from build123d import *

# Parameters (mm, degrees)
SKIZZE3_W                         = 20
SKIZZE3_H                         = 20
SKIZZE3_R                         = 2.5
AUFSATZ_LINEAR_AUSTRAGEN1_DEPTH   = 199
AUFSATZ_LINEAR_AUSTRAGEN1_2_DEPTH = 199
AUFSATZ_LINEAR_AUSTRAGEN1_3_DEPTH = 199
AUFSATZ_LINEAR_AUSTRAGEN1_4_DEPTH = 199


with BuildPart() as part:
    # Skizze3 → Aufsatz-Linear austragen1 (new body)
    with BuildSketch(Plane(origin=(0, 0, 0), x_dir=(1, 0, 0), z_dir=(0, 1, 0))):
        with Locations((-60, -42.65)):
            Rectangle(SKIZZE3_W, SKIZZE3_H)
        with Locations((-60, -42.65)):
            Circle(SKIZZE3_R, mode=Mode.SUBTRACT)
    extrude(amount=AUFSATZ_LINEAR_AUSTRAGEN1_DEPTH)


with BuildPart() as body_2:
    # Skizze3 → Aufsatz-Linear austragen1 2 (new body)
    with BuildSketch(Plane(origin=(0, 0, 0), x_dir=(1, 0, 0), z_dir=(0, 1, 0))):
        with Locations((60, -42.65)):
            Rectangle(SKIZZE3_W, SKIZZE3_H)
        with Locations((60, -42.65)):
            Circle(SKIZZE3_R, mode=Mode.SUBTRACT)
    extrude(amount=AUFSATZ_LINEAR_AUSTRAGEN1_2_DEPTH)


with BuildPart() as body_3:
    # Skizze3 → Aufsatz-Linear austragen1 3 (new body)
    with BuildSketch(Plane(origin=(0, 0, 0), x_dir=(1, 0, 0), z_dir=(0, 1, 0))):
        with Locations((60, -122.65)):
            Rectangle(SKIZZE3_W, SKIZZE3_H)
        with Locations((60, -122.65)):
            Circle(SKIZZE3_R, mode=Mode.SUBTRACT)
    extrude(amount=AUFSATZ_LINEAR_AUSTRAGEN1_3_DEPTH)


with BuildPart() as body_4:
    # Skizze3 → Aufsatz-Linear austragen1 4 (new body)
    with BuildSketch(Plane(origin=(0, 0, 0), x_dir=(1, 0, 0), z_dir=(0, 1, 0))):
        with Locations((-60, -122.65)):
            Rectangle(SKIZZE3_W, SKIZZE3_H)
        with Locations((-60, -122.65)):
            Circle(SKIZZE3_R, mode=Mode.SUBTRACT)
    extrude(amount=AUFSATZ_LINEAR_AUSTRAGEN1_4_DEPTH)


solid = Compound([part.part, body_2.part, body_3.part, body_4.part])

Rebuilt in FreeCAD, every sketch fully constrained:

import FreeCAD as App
import Part
import Sketcher
from FreeCAD import Vector
Q = App.Units.Quantity

doc = App.newDocument("Part")
body = doc.addObject("PartDesign::Body", "Body")

# Sketch on XZ plane
sketch1 = doc.addObject("Sketcher::SketchObject", "Sketch")
body.addObject(sketch1)
sketch1.AttachmentSupport = (doc.XZ_Plane, [""])
sketch1.MapMode = "FlatFace"
sketch1.addGeometry([
    Part.LineSegment(Vector(-70, 32.65, 0), Vector(-70, 52.65, 0)),  # 0
    Part.LineSegment(Vector(-70, 52.65, 0), Vector(-50, 52.65, 0)),  # 1
    Part.LineSegment(Vector(-50, 52.65, 0), Vector(-50, 32.65, 0)),  # 2
    Part.LineSegment(Vector(-50, 32.65, 0), Vector(-70, 32.65, 0)),  # 3
    Part.Circle(Vector(-60, 42.65, 0), Vector(0, 0, 1), 2.5),  # 4
], False)
sketch1.addConstraint([
    Sketcher.Constraint("Coincident", 0, 2, 1, 1),
    Sketcher.Constraint("Coincident", 1, 2, 2, 1),
    Sketcher.Constraint("Coincident", 2, 2, 3, 1),
    Sketcher.Constraint("Coincident", 3, 2, 0, 1),
    Sketcher.Constraint("Vertical", 0),
    Sketcher.Constraint("Horizontal", 1),
    Sketcher.Constraint("Vertical", 2),
    Sketcher.Constraint("Horizontal", 3),
    Sketcher.Constraint("Equal", 3, 0),
    Sketcher.Constraint("Diameter", 4, Q("5 mm")),
    Sketcher.Constraint("DistanceX", 1, 1, 1, 2, Q("20 mm")),
    Sketcher.Constraint("DistanceX", 4, 3, -1, 1, Q("60 mm")),
    Sketcher.Constraint("DistanceX", 0, 2, -1, 1, Q("70 mm")),
    Sketcher.Constraint("DistanceY", 4, 3, 0, 2, Q("10 mm")),
    Sketcher.Constraint("DistanceY", -1, 1, 4, 3, Q("42.65 mm")),
])
pad1 = doc.addObject("PartDesign::Pad", "Pad")
body.addObject(pad1)
pad1.Profile = sketch1
pad1.Length = 199
pad1.Reversed = True
body2 = doc.addObject("PartDesign::Body", "Body001")

# Sketch on XZ plane
sketch2 = doc.addObject("Sketcher::SketchObject", "Sketch001")
body2.addObject(sketch2)
sketch2.AttachmentSupport = (doc.getObject("XZ_Plane001"), [""])
sketch2.MapMode = "FlatFace"
sketch2.addGeometry([
    Part.LineSegment(Vector(50, 32.65, 0), Vector(50, 52.65, 0)),  # 0
    Part.LineSegment(Vector(50, 52.65, 0), Vector(70, 52.65, 0)),  # 1
    Part.LineSegment(Vector(70, 52.65, 0), Vector(70, 32.65, 0)),  # 2
    Part.LineSegment(Vector(70, 32.65, 0), Vector(50, 32.65, 0)),  # 3
    Part.Circle(Vector(60, 42.65, 0), Vector(0, 0, 1), 2.5),  # 4
], False)
sketch2.addConstraint([
    Sketcher.Constraint("Coincident", 0, 2, 1, 1),
    Sketcher.Constraint("Coincident", 1, 2, 2, 1),
    Sketcher.Constraint("Coincident", 2, 2, 3, 1),
    Sketcher.Constraint("Coincident", 3, 2, 0, 1),
    Sketcher.Constraint("Vertical", 0),
    Sketcher.Constraint("Horizontal", 1),
    Sketcher.Constraint("Vertical", 2),
    Sketcher.Constraint("Horizontal", 3),
    Sketcher.Constraint("Equal", 3, 0),
    Sketcher.Constraint("Diameter", 4, Q("5 mm")),
    Sketcher.Constraint("DistanceX", 1, 1, 1, 2, Q("20 mm")),
    Sketcher.Constraint("DistanceX", -1, 1, 4, 3, Q("60 mm")),
    Sketcher.Constraint("DistanceX", -1, 1, 0, 2, Q("50 mm")),
    Sketcher.Constraint("DistanceY", 4, 3, 0, 2, Q("10 mm")),
    Sketcher.Constraint("DistanceY", -1, 1, 4, 3, Q("42.65 mm")),
])
pad2 = doc.addObject("PartDesign::Pad", "Pad001")
body2.addObject(pad2)
pad2.Profile = sketch2
pad2.Length = 199
pad2.Reversed = True
body3 = doc.addObject("PartDesign::Body", "Body002")

# Sketch on XZ plane
sketch3 = doc.addObject("Sketcher::SketchObject", "Sketch002")
body3.addObject(sketch3)
sketch3.AttachmentSupport = (doc.getObject("XZ_Plane002"), [""])
sketch3.MapMode = "FlatFace"
sketch3.addGeometry([
    Part.LineSegment(Vector(50, 112.65, 0), Vector(50, 132.65, 0)),  # 0
    Part.LineSegment(Vector(50, 132.65, 0), Vector(70, 132.65, 0)),  # 1
    Part.LineSegment(Vector(70, 132.65, 0), Vector(70, 112.65, 0)),  # 2
    Part.LineSegment(Vector(70, 112.65, 0), Vector(50, 112.65, 0)),  # 3
    Part.Circle(Vector(60, 122.65, 0), Vector(0, 0, 1), 2.5),  # 4
], False)
sketch3.addConstraint([
    Sketcher.Constraint("Coincident", 0, 2, 1, 1),
    Sketcher.Constraint("Coincident", 1, 2, 2, 1),
    Sketcher.Constraint("Coincident", 2, 2, 3, 1),
    Sketcher.Constraint("Coincident", 3, 2, 0, 1),
    Sketcher.Constraint("Vertical", 0),
    Sketcher.Constraint("Horizontal", 1),
    Sketcher.Constraint("Vertical", 2),
    Sketcher.Constraint("Horizontal", 3),
    Sketcher.Constraint("Equal", 3, 0),
    Sketcher.Constraint("Diameter", 4, Q("5 mm")),
    Sketcher.Constraint("DistanceX", 1, 1, 1, 2, Q("20 mm")),
    Sketcher.Constraint("DistanceX", -1, 1, 4, 3, Q("60 mm")),
    Sketcher.Constraint("DistanceX", -1, 1, 0, 2, Q("50 mm")),
    Sketcher.Constraint("DistanceY", 4, 3, 0, 2, Q("10 mm")),
    Sketcher.Constraint("DistanceY", -1, 1, 4, 3, Q("122.65 mm")),
])
pad3 = doc.addObject("PartDesign::Pad", "Pad002")
body3.addObject(pad3)
pad3.Profile = sketch3
pad3.Length = 199
pad3.Reversed = True
body4 = doc.addObject("PartDesign::Body", "Body003")

# Sketch on XZ plane
sketch4 = doc.addObject("Sketcher::SketchObject", "Sketch003")
body4.addObject(sketch4)
sketch4.AttachmentSupport = (doc.getObject("XZ_Plane003"), [""])
sketch4.MapMode = "FlatFace"
sketch4.addGeometry([
    Part.LineSegment(Vector(-70, 112.65, 0), Vector(-70, 132.65, 0)),  # 0
    Part.LineSegment(Vector(-70, 132.65, 0), Vector(-50, 132.65, 0)),  # 1
    Part.LineSegment(Vector(-50, 132.65, 0), Vector(-50, 112.65, 0)),  # 2
    Part.LineSegment(Vector(-50, 112.65, 0), Vector(-70, 112.65, 0)),  # 3
    Part.Circle(Vector(-60, 122.65, 0), Vector(0, 0, 1), 2.5),  # 4
], False)
sketch4.addConstraint([
    Sketcher.Constraint("Coincident", 0, 2, 1, 1),
    Sketcher.Constraint("Coincident", 1, 2, 2, 1),
    Sketcher.Constraint("Coincident", 2, 2, 3, 1),
    Sketcher.Constraint("Coincident", 3, 2, 0, 1),
    Sketcher.Constraint("Vertical", 0),
    Sketcher.Constraint("Horizontal", 1),
    Sketcher.Constraint("Vertical", 2),
    Sketcher.Constraint("Horizontal", 3),
    Sketcher.Constraint("Equal", 3, 0),
    Sketcher.Constraint("Diameter", 4, Q("5 mm")),
    Sketcher.Constraint("DistanceX", 1, 1, 1, 2, Q("20 mm")),
    Sketcher.Constraint("DistanceX", 4, 3, -1, 1, Q("60 mm")),
    Sketcher.Constraint("DistanceX", 0, 2, -1, 1, Q("70 mm")),
    Sketcher.Constraint("DistanceY", 4, 3, 0, 2, Q("10 mm")),
    Sketcher.Constraint("DistanceY", -1, 1, 4, 3, Q("122.65 mm")),
])
pad4 = doc.addObject("PartDesign::Pad", "Pad003")
body4.addObject(pad4)
pad4.Profile = sketch4
pad4.Length = 199
pad4.Reversed = True

doc.recompute()
